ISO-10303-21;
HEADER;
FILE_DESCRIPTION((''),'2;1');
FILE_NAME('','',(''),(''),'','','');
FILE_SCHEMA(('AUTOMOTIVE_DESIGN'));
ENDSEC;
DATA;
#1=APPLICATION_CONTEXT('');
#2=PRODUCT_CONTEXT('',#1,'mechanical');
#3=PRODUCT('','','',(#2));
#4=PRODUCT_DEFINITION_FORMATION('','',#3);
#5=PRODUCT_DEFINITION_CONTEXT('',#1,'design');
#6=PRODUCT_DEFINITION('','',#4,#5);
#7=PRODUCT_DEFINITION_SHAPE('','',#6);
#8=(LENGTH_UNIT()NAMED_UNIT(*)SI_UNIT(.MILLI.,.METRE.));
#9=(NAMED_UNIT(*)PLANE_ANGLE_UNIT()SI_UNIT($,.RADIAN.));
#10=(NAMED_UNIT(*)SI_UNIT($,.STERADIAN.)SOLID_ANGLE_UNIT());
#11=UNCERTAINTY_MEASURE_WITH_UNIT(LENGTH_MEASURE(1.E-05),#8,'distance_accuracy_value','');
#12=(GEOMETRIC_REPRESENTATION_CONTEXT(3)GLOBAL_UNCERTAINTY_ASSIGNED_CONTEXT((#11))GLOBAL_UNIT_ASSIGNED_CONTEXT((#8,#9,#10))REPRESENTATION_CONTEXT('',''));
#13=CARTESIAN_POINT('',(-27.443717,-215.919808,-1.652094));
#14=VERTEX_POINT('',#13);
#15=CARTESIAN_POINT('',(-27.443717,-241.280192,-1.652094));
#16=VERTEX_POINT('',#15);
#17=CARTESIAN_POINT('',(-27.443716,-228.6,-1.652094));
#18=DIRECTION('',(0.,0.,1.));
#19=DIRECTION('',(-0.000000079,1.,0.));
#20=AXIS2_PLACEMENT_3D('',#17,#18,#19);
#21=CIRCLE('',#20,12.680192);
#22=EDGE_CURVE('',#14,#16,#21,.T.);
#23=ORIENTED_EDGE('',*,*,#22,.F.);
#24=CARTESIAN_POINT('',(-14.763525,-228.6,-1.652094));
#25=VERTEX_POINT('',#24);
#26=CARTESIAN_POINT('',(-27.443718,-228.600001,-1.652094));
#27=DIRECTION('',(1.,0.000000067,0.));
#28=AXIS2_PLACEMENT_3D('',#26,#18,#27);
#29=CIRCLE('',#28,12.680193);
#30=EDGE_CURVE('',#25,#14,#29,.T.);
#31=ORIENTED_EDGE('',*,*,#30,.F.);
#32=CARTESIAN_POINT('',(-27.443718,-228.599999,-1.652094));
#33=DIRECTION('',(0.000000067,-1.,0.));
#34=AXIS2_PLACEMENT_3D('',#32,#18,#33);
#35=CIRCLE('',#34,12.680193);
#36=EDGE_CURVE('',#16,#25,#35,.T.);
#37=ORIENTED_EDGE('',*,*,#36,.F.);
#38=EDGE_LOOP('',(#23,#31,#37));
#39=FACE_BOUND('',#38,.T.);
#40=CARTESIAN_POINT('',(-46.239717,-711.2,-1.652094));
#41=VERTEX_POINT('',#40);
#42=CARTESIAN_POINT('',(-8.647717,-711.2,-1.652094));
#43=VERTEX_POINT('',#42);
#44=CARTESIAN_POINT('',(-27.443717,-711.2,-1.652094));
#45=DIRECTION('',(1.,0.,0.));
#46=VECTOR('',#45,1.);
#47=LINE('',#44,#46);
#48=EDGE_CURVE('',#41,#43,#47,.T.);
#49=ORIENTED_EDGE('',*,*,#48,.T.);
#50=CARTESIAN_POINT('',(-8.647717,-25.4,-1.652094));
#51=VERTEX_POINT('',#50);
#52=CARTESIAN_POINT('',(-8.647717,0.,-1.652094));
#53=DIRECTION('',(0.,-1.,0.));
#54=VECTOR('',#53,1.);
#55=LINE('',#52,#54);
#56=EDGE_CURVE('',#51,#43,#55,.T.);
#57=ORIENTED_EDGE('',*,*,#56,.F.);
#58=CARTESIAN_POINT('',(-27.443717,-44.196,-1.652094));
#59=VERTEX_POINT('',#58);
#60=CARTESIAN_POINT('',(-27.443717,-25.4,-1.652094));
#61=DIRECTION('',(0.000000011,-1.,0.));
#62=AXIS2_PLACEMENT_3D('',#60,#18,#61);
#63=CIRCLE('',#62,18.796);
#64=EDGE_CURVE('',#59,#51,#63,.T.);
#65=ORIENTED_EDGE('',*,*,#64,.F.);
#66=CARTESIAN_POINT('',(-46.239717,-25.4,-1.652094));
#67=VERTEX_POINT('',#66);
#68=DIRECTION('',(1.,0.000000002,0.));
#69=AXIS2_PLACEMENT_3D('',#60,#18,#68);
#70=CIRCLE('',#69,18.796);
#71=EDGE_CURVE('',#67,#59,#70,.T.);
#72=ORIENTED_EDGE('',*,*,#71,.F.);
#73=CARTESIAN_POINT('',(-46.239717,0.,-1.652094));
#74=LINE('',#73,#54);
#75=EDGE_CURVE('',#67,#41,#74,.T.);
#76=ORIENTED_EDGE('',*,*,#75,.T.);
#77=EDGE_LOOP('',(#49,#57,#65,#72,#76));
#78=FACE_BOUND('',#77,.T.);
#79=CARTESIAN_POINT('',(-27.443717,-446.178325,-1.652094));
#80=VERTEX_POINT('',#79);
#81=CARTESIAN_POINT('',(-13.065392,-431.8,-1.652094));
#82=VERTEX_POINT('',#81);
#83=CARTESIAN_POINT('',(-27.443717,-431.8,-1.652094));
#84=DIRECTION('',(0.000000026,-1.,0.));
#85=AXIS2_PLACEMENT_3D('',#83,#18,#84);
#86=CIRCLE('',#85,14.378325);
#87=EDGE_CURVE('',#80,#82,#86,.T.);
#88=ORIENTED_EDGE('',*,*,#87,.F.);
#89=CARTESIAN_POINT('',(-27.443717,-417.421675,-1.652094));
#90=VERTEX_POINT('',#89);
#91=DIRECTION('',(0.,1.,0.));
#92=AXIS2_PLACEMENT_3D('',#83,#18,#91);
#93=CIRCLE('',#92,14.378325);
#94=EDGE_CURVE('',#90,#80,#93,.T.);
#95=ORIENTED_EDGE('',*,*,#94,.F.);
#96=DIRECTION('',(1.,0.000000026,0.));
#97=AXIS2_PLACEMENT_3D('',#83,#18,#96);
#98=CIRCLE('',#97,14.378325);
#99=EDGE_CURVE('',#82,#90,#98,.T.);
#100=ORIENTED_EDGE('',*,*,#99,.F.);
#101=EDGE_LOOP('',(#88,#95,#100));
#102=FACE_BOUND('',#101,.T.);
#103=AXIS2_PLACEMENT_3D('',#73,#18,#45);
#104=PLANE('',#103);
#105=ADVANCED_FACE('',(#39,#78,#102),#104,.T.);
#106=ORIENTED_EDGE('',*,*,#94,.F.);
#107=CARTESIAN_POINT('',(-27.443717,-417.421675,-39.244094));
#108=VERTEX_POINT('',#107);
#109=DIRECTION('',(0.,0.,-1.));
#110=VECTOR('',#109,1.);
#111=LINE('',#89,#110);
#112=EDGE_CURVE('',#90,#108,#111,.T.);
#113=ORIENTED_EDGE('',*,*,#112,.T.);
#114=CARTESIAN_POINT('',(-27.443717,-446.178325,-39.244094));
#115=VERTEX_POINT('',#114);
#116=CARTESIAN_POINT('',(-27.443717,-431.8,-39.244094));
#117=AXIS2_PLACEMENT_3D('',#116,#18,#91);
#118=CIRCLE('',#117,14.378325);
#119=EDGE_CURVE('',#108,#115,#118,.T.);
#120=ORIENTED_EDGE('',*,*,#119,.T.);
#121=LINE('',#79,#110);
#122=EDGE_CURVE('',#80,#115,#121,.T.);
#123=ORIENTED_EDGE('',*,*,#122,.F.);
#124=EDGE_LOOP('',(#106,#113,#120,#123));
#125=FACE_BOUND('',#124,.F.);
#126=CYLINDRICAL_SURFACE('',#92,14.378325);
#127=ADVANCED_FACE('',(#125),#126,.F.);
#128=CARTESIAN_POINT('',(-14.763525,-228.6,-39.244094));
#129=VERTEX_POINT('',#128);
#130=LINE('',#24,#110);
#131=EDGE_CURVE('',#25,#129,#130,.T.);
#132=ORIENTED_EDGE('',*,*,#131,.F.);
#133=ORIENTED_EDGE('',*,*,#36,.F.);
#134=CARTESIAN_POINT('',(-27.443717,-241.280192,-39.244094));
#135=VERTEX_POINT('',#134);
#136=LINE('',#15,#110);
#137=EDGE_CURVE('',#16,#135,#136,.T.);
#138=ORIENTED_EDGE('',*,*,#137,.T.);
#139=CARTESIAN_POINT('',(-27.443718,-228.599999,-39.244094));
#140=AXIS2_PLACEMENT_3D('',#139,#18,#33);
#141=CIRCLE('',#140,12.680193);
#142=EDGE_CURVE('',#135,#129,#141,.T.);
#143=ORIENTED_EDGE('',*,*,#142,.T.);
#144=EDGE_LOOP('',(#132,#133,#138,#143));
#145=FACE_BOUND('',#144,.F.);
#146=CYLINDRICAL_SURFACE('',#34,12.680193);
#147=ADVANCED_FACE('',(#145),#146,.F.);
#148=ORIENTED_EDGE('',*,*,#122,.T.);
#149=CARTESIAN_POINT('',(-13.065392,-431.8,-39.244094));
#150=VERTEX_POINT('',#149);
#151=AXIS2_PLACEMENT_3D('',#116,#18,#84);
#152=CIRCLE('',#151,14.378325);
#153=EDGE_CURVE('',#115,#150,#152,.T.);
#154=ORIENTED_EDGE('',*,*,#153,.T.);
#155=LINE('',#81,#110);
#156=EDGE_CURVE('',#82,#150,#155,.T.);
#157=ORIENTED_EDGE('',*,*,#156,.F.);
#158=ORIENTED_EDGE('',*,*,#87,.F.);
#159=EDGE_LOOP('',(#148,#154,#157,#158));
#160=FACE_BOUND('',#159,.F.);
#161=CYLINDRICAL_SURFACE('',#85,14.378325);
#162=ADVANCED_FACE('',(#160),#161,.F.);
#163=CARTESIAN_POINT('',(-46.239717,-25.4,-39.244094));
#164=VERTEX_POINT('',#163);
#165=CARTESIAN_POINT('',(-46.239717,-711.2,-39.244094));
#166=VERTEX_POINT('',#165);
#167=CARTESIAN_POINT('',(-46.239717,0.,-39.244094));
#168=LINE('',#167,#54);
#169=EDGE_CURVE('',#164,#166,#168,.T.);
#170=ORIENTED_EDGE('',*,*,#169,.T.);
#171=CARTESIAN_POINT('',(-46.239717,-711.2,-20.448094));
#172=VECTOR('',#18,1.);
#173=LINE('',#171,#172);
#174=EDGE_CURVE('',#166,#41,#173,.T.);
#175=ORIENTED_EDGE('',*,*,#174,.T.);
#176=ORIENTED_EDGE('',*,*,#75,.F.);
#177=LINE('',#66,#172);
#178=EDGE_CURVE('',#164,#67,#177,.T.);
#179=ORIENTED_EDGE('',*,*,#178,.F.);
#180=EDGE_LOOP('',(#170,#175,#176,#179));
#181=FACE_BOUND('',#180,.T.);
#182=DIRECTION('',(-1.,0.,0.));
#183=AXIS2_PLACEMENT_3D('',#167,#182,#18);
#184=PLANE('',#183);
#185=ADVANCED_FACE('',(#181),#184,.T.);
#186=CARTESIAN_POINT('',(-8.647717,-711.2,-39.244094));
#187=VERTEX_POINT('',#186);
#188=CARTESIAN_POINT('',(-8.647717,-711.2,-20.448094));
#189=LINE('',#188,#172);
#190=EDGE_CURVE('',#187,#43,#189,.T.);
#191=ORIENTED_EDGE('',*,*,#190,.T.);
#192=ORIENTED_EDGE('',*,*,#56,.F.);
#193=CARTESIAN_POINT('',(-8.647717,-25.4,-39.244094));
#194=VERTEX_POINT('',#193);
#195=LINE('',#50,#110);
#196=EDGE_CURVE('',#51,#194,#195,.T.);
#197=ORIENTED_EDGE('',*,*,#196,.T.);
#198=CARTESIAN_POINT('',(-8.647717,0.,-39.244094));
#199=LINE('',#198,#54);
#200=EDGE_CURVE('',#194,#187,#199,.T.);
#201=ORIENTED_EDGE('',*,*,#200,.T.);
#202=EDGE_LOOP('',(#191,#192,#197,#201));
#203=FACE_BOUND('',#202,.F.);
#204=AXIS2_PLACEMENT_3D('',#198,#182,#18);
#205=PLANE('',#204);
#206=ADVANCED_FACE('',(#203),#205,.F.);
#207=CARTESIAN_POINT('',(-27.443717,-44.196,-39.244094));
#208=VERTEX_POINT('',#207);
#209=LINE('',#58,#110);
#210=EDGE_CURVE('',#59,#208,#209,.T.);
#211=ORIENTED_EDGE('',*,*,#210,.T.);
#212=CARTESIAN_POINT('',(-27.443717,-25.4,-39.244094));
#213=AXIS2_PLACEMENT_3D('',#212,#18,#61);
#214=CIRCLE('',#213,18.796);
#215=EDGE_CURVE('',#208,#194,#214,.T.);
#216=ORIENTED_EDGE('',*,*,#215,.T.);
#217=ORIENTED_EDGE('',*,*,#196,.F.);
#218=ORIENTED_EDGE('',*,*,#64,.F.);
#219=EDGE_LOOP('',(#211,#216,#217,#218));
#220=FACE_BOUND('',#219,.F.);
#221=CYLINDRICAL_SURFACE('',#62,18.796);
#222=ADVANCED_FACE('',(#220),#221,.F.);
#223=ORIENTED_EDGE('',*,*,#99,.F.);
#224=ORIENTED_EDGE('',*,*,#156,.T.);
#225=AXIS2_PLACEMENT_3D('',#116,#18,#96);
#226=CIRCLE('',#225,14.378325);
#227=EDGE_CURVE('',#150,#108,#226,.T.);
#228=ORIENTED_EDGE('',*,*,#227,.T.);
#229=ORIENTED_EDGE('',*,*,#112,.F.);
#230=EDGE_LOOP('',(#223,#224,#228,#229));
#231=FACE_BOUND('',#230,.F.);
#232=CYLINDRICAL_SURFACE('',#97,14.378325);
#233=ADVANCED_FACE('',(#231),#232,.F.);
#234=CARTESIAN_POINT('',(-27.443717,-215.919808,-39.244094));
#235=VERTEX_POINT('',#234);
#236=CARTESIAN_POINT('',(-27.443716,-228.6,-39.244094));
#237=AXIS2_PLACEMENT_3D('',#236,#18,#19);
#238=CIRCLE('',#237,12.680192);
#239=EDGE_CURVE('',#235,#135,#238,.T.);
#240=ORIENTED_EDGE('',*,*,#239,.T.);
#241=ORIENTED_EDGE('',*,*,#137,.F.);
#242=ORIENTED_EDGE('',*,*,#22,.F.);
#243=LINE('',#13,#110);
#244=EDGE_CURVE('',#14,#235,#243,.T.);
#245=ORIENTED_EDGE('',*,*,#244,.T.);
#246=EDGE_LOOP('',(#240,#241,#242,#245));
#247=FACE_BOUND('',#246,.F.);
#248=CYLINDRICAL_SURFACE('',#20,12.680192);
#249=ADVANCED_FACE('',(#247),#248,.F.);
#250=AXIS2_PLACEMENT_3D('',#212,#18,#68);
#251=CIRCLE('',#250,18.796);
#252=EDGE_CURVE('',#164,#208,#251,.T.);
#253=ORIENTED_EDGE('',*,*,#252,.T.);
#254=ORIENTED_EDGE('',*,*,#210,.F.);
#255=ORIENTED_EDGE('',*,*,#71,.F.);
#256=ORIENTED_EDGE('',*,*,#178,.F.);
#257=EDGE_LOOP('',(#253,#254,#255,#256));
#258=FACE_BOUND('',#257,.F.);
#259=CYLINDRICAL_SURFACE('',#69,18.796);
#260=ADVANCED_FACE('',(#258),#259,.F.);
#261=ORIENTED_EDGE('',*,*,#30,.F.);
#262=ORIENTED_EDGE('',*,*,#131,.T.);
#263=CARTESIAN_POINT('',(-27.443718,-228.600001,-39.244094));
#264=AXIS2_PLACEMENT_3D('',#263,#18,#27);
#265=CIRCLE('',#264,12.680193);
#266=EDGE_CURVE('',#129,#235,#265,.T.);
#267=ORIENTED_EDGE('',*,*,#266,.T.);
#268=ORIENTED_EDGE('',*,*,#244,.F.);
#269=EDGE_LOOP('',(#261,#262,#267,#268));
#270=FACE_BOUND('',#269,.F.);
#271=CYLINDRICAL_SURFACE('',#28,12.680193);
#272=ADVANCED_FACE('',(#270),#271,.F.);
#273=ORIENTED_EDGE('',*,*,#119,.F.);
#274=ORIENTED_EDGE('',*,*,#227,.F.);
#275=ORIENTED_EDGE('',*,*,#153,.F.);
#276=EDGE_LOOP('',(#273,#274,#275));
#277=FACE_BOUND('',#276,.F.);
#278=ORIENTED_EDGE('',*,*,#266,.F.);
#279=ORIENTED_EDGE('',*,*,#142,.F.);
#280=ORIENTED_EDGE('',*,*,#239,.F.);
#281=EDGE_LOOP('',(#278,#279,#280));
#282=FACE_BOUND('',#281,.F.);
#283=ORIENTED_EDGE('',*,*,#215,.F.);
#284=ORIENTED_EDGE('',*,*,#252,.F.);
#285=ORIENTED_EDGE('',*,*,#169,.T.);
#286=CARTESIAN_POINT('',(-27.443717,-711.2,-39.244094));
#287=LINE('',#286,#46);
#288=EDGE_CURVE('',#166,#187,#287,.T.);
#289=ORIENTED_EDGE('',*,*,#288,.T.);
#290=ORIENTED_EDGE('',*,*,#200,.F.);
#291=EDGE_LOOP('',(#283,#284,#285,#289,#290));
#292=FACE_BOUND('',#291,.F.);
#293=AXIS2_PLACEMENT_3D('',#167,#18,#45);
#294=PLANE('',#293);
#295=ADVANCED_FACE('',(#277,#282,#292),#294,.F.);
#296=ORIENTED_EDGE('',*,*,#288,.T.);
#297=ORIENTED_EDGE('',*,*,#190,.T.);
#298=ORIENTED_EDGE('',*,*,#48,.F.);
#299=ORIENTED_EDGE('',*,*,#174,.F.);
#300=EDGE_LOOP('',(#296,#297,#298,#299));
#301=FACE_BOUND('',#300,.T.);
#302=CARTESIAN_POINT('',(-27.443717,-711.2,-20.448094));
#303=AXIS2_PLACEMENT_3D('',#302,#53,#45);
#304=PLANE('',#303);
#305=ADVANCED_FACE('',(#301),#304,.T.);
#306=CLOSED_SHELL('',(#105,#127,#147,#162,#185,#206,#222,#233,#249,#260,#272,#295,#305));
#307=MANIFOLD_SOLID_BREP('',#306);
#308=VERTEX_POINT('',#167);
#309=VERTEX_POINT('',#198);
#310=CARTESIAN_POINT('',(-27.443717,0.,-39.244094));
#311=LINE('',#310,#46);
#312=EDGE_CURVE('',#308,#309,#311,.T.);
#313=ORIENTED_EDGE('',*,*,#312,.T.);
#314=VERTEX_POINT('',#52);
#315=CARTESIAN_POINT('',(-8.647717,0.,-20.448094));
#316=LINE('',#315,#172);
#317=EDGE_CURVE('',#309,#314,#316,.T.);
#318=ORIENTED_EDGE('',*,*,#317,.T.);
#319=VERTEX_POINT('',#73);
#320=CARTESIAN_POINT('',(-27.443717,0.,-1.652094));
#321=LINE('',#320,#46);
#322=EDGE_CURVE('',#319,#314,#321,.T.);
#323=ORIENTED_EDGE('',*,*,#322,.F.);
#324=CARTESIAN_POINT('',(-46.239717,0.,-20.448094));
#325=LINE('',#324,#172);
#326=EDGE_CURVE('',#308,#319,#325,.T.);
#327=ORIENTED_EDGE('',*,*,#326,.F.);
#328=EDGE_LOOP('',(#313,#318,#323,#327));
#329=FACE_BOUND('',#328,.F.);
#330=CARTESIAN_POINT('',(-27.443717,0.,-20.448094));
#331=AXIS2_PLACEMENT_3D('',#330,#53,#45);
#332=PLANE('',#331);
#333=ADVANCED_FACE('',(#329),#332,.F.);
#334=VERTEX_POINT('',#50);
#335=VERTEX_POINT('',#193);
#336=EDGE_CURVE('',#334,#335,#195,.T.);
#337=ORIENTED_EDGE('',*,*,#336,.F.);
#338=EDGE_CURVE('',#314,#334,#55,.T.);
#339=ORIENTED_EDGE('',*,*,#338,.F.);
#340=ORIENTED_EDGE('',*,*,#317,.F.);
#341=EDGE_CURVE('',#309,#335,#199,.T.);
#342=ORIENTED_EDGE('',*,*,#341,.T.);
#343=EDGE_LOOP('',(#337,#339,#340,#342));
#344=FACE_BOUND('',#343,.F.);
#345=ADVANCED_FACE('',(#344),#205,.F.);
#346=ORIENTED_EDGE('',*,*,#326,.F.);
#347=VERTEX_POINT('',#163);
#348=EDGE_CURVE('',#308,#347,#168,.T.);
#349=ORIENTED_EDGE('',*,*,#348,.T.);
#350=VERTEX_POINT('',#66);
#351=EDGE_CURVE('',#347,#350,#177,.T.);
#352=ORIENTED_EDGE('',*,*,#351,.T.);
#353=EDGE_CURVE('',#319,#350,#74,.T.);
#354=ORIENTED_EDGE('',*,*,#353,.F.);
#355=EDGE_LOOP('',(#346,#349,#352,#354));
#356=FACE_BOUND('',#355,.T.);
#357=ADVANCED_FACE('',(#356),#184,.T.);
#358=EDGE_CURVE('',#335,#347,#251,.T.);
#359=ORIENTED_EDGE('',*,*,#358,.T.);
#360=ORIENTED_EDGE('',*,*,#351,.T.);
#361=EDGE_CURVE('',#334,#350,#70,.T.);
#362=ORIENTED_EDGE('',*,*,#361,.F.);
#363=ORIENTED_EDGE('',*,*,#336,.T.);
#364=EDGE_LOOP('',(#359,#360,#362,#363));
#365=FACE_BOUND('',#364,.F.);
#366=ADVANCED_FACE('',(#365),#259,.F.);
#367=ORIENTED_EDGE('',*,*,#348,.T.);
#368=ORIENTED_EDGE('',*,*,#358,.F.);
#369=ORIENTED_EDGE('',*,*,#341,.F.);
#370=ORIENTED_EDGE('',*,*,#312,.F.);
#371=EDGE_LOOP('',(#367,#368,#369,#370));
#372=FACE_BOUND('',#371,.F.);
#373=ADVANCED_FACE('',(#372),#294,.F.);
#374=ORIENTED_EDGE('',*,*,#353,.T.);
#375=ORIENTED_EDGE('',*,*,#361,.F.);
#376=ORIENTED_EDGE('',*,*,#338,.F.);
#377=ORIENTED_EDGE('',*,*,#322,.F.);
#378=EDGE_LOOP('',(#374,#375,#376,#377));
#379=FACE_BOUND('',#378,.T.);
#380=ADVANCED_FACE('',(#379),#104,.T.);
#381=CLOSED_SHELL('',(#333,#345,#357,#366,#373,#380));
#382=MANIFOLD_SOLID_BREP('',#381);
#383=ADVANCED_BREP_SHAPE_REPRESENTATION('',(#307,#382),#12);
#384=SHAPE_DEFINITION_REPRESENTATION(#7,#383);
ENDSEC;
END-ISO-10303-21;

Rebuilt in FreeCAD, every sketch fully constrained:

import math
import FreeCAD as App
import Part
import Sketcher
Q = App.Units.Quantity


def add_polygon(sketch, points):
    """Adds a closed chain of lines whose ends are joined by coincident constraints."""
    first, n = sketch.GeometryCount, len(points)
    for a, b in zip(points, points[1:] + points[:1]):
        sketch.addGeometry(Part.LineSegment(App.Vector(*a, 0), App.Vector(*b, 0)), False)
    for i in range(n):
        sketch.addConstraint(Sketcher.Constraint("Coincident", first + i, 2, first + (i + 1) % n, 1))

doc = App.newDocument("Part")
body = doc.addObject("PartDesign::Body", "Body")
body.AllowCompound = True

# Sketch on XZ plane
sketch1 = body.newObject("Sketcher::SketchObject", "Sketch")
sketch1.AttachmentSupport = (doc.getObject("XZ_Plane"), [""])
sketch1.MapMode = "FlatFace"
add_polygon(sketch1, [(-46, -2), (-46, -39), (-9, -39), (-9, -2)])  # lines 0-3
sketch1.addConstraint([
    Sketcher.Constraint("Vertical", 0),
    Sketcher.Constraint("Horizontal", 1),
    Sketcher.Constraint("Vertical", 2),
    Sketcher.Constraint("Horizontal", 3),
    Sketcher.Constraint("Equal", 3, 0),
    Sketcher.Constraint("DistanceX", 1, 1, 1, 2, Q("1.48 in")),
    Sketcher.Constraint("DistanceX", 0, 2, -1, 1, Q("46.239717 mm")),
    Sketcher.Constraint("DistanceY", 0, 2, -1, 1, Q("39.244094 mm")),
])
pad1 = body.newObject("PartDesign::Pad", "Pad")
pad1.Profile = sketch1
pad1.Length = Q("28 in")

# Sketch on XY plane
sketch2 = body.newObject("Sketcher::SketchObject", "Sketch001")
sketch2.AttachmentSupport = (doc.getObject("XY_Plane"), [""])
sketch2.MapMode = "FlatFace"
sketch2.AttachmentOffset = App.Placement(App.Vector(0, 0, -1.652094), App.Rotation())
sketch2.addGeometry([
    Part.ArcOfCircle(Part.Circle(App.Vector(-27, -432, 0), App.Vector(0, 0, 1), 14), math.radians(90), math.radians(270)),  # 0
    Part.ArcOfCircle(Part.Circle(App.Vector(-27, -432, 0), App.Vector(0, 0, 1), 14), math.radians(-90), math.radians(0)),  # 1
    Part.ArcOfCircle(Part.Circle(App.Vector(-27, -432, 0), App.Vector(0, 0, 1), 14), math.radians(0), math.radians(90)),  # 2
    Part.ArcOfCircle(Part.Circle(App.Vector(-27, -229, 0), App.Vector(0, 0, 1), 13), math.radians(-90), math.radians(0)),  # 3
    Part.ArcOfCircle(Part.Circle(App.Vector(-27, -229, 0), App.Vector(0, 0, 1), 13), math.radians(0), math.radians(90)),  # 4
    Part.ArcOfCircle(Part.Circle(App.Vector(-27, -229, 0), App.Vector(0, 0, 1), 13), math.radians(90), math.radians(270)),  # 5
    Part.ArcOfCircle(Part.Circle(App.Vector(-27, -25, 0), App.Vector(0, 0, 1), 19), math.radians(-90), math.radians(0)),  # 6
    Part.ArcOfCircle(Part.Circle(App.Vector(-27, -25, 0), App.Vector(0, 0, 1), 19), math.radians(0), math.radians(270)),  # 7
], False)
sketch2.addConstraint([
    Sketcher.Constraint("Tangent", 0, 2, 1, 1),
    Sketcher.Constraint("Tangent", 1, 2, 2, 1),
    Sketcher.Constraint("Tangent", 2, 2, 0, 1),
    Sketcher.Constraint("Tangent", 3, 2, 4, 1),
    Sketcher.Constraint("Tangent", 4, 2, 5, 1),
    Sketcher.Constraint("Tangent", 5, 2, 3, 1),
    Sketcher.Constraint("Tangent", 6, 1, 7, 2),
    Sketcher.Constraint("Coincident", 7, 1, 6, 2),
    Sketcher.Constraint("Horizontal", 2, 3, 1, 2),
    Sketcher.Constraint("Horizontal", 5, 3, 3, 2),
    Sketcher.Constraint("Horizontal", 6, 3, 7, 1),
    Sketcher.Constraint("Vertical", 2, 3, 3, 3),
    Sketcher.Constraint("Vertical", 5, 3, 6, 3),
    Sketcher.Constraint("Vertical", 7, 3, 0, 2),
    Sketcher.Constraint("Vertical", 0, 2, 2, 2),
    Sketcher.Constraint("Vertical", 2, 2, 4, 2),
    Sketcher.Constraint("Vertical", 4, 2, 5, 2),
    Sketcher.Constraint("Vertical", 5, 2, 6, 1),
    Sketcher.Constraint("Radius", 6, Q("0.74 in")),
    Sketcher.Constraint("DistanceY", 0, 3, -1, 1, Q("17 in")),
    Sketcher.Constraint("DistanceY", 3, 3, -1, 1, Q("9 in")),
    Sketcher.Constraint("DistanceY", 6, 3, -1, 1, Q("1 in")),
    Sketcher.Constraint("Radius", 0, Q("14.378325 mm")),
    Sketcher.Constraint("Radius", 3, Q("12.680193 mm")),
    Sketcher.Constraint("DistanceX", 0, 3, -1, 1, Q("27.443717 mm")),
])
pocket1 = body.newObject("PartDesign::Pocket", "Pocket")
pocket1.Profile = sketch2
pocket1.Type = "ThroughAll"

doc.recompute()
